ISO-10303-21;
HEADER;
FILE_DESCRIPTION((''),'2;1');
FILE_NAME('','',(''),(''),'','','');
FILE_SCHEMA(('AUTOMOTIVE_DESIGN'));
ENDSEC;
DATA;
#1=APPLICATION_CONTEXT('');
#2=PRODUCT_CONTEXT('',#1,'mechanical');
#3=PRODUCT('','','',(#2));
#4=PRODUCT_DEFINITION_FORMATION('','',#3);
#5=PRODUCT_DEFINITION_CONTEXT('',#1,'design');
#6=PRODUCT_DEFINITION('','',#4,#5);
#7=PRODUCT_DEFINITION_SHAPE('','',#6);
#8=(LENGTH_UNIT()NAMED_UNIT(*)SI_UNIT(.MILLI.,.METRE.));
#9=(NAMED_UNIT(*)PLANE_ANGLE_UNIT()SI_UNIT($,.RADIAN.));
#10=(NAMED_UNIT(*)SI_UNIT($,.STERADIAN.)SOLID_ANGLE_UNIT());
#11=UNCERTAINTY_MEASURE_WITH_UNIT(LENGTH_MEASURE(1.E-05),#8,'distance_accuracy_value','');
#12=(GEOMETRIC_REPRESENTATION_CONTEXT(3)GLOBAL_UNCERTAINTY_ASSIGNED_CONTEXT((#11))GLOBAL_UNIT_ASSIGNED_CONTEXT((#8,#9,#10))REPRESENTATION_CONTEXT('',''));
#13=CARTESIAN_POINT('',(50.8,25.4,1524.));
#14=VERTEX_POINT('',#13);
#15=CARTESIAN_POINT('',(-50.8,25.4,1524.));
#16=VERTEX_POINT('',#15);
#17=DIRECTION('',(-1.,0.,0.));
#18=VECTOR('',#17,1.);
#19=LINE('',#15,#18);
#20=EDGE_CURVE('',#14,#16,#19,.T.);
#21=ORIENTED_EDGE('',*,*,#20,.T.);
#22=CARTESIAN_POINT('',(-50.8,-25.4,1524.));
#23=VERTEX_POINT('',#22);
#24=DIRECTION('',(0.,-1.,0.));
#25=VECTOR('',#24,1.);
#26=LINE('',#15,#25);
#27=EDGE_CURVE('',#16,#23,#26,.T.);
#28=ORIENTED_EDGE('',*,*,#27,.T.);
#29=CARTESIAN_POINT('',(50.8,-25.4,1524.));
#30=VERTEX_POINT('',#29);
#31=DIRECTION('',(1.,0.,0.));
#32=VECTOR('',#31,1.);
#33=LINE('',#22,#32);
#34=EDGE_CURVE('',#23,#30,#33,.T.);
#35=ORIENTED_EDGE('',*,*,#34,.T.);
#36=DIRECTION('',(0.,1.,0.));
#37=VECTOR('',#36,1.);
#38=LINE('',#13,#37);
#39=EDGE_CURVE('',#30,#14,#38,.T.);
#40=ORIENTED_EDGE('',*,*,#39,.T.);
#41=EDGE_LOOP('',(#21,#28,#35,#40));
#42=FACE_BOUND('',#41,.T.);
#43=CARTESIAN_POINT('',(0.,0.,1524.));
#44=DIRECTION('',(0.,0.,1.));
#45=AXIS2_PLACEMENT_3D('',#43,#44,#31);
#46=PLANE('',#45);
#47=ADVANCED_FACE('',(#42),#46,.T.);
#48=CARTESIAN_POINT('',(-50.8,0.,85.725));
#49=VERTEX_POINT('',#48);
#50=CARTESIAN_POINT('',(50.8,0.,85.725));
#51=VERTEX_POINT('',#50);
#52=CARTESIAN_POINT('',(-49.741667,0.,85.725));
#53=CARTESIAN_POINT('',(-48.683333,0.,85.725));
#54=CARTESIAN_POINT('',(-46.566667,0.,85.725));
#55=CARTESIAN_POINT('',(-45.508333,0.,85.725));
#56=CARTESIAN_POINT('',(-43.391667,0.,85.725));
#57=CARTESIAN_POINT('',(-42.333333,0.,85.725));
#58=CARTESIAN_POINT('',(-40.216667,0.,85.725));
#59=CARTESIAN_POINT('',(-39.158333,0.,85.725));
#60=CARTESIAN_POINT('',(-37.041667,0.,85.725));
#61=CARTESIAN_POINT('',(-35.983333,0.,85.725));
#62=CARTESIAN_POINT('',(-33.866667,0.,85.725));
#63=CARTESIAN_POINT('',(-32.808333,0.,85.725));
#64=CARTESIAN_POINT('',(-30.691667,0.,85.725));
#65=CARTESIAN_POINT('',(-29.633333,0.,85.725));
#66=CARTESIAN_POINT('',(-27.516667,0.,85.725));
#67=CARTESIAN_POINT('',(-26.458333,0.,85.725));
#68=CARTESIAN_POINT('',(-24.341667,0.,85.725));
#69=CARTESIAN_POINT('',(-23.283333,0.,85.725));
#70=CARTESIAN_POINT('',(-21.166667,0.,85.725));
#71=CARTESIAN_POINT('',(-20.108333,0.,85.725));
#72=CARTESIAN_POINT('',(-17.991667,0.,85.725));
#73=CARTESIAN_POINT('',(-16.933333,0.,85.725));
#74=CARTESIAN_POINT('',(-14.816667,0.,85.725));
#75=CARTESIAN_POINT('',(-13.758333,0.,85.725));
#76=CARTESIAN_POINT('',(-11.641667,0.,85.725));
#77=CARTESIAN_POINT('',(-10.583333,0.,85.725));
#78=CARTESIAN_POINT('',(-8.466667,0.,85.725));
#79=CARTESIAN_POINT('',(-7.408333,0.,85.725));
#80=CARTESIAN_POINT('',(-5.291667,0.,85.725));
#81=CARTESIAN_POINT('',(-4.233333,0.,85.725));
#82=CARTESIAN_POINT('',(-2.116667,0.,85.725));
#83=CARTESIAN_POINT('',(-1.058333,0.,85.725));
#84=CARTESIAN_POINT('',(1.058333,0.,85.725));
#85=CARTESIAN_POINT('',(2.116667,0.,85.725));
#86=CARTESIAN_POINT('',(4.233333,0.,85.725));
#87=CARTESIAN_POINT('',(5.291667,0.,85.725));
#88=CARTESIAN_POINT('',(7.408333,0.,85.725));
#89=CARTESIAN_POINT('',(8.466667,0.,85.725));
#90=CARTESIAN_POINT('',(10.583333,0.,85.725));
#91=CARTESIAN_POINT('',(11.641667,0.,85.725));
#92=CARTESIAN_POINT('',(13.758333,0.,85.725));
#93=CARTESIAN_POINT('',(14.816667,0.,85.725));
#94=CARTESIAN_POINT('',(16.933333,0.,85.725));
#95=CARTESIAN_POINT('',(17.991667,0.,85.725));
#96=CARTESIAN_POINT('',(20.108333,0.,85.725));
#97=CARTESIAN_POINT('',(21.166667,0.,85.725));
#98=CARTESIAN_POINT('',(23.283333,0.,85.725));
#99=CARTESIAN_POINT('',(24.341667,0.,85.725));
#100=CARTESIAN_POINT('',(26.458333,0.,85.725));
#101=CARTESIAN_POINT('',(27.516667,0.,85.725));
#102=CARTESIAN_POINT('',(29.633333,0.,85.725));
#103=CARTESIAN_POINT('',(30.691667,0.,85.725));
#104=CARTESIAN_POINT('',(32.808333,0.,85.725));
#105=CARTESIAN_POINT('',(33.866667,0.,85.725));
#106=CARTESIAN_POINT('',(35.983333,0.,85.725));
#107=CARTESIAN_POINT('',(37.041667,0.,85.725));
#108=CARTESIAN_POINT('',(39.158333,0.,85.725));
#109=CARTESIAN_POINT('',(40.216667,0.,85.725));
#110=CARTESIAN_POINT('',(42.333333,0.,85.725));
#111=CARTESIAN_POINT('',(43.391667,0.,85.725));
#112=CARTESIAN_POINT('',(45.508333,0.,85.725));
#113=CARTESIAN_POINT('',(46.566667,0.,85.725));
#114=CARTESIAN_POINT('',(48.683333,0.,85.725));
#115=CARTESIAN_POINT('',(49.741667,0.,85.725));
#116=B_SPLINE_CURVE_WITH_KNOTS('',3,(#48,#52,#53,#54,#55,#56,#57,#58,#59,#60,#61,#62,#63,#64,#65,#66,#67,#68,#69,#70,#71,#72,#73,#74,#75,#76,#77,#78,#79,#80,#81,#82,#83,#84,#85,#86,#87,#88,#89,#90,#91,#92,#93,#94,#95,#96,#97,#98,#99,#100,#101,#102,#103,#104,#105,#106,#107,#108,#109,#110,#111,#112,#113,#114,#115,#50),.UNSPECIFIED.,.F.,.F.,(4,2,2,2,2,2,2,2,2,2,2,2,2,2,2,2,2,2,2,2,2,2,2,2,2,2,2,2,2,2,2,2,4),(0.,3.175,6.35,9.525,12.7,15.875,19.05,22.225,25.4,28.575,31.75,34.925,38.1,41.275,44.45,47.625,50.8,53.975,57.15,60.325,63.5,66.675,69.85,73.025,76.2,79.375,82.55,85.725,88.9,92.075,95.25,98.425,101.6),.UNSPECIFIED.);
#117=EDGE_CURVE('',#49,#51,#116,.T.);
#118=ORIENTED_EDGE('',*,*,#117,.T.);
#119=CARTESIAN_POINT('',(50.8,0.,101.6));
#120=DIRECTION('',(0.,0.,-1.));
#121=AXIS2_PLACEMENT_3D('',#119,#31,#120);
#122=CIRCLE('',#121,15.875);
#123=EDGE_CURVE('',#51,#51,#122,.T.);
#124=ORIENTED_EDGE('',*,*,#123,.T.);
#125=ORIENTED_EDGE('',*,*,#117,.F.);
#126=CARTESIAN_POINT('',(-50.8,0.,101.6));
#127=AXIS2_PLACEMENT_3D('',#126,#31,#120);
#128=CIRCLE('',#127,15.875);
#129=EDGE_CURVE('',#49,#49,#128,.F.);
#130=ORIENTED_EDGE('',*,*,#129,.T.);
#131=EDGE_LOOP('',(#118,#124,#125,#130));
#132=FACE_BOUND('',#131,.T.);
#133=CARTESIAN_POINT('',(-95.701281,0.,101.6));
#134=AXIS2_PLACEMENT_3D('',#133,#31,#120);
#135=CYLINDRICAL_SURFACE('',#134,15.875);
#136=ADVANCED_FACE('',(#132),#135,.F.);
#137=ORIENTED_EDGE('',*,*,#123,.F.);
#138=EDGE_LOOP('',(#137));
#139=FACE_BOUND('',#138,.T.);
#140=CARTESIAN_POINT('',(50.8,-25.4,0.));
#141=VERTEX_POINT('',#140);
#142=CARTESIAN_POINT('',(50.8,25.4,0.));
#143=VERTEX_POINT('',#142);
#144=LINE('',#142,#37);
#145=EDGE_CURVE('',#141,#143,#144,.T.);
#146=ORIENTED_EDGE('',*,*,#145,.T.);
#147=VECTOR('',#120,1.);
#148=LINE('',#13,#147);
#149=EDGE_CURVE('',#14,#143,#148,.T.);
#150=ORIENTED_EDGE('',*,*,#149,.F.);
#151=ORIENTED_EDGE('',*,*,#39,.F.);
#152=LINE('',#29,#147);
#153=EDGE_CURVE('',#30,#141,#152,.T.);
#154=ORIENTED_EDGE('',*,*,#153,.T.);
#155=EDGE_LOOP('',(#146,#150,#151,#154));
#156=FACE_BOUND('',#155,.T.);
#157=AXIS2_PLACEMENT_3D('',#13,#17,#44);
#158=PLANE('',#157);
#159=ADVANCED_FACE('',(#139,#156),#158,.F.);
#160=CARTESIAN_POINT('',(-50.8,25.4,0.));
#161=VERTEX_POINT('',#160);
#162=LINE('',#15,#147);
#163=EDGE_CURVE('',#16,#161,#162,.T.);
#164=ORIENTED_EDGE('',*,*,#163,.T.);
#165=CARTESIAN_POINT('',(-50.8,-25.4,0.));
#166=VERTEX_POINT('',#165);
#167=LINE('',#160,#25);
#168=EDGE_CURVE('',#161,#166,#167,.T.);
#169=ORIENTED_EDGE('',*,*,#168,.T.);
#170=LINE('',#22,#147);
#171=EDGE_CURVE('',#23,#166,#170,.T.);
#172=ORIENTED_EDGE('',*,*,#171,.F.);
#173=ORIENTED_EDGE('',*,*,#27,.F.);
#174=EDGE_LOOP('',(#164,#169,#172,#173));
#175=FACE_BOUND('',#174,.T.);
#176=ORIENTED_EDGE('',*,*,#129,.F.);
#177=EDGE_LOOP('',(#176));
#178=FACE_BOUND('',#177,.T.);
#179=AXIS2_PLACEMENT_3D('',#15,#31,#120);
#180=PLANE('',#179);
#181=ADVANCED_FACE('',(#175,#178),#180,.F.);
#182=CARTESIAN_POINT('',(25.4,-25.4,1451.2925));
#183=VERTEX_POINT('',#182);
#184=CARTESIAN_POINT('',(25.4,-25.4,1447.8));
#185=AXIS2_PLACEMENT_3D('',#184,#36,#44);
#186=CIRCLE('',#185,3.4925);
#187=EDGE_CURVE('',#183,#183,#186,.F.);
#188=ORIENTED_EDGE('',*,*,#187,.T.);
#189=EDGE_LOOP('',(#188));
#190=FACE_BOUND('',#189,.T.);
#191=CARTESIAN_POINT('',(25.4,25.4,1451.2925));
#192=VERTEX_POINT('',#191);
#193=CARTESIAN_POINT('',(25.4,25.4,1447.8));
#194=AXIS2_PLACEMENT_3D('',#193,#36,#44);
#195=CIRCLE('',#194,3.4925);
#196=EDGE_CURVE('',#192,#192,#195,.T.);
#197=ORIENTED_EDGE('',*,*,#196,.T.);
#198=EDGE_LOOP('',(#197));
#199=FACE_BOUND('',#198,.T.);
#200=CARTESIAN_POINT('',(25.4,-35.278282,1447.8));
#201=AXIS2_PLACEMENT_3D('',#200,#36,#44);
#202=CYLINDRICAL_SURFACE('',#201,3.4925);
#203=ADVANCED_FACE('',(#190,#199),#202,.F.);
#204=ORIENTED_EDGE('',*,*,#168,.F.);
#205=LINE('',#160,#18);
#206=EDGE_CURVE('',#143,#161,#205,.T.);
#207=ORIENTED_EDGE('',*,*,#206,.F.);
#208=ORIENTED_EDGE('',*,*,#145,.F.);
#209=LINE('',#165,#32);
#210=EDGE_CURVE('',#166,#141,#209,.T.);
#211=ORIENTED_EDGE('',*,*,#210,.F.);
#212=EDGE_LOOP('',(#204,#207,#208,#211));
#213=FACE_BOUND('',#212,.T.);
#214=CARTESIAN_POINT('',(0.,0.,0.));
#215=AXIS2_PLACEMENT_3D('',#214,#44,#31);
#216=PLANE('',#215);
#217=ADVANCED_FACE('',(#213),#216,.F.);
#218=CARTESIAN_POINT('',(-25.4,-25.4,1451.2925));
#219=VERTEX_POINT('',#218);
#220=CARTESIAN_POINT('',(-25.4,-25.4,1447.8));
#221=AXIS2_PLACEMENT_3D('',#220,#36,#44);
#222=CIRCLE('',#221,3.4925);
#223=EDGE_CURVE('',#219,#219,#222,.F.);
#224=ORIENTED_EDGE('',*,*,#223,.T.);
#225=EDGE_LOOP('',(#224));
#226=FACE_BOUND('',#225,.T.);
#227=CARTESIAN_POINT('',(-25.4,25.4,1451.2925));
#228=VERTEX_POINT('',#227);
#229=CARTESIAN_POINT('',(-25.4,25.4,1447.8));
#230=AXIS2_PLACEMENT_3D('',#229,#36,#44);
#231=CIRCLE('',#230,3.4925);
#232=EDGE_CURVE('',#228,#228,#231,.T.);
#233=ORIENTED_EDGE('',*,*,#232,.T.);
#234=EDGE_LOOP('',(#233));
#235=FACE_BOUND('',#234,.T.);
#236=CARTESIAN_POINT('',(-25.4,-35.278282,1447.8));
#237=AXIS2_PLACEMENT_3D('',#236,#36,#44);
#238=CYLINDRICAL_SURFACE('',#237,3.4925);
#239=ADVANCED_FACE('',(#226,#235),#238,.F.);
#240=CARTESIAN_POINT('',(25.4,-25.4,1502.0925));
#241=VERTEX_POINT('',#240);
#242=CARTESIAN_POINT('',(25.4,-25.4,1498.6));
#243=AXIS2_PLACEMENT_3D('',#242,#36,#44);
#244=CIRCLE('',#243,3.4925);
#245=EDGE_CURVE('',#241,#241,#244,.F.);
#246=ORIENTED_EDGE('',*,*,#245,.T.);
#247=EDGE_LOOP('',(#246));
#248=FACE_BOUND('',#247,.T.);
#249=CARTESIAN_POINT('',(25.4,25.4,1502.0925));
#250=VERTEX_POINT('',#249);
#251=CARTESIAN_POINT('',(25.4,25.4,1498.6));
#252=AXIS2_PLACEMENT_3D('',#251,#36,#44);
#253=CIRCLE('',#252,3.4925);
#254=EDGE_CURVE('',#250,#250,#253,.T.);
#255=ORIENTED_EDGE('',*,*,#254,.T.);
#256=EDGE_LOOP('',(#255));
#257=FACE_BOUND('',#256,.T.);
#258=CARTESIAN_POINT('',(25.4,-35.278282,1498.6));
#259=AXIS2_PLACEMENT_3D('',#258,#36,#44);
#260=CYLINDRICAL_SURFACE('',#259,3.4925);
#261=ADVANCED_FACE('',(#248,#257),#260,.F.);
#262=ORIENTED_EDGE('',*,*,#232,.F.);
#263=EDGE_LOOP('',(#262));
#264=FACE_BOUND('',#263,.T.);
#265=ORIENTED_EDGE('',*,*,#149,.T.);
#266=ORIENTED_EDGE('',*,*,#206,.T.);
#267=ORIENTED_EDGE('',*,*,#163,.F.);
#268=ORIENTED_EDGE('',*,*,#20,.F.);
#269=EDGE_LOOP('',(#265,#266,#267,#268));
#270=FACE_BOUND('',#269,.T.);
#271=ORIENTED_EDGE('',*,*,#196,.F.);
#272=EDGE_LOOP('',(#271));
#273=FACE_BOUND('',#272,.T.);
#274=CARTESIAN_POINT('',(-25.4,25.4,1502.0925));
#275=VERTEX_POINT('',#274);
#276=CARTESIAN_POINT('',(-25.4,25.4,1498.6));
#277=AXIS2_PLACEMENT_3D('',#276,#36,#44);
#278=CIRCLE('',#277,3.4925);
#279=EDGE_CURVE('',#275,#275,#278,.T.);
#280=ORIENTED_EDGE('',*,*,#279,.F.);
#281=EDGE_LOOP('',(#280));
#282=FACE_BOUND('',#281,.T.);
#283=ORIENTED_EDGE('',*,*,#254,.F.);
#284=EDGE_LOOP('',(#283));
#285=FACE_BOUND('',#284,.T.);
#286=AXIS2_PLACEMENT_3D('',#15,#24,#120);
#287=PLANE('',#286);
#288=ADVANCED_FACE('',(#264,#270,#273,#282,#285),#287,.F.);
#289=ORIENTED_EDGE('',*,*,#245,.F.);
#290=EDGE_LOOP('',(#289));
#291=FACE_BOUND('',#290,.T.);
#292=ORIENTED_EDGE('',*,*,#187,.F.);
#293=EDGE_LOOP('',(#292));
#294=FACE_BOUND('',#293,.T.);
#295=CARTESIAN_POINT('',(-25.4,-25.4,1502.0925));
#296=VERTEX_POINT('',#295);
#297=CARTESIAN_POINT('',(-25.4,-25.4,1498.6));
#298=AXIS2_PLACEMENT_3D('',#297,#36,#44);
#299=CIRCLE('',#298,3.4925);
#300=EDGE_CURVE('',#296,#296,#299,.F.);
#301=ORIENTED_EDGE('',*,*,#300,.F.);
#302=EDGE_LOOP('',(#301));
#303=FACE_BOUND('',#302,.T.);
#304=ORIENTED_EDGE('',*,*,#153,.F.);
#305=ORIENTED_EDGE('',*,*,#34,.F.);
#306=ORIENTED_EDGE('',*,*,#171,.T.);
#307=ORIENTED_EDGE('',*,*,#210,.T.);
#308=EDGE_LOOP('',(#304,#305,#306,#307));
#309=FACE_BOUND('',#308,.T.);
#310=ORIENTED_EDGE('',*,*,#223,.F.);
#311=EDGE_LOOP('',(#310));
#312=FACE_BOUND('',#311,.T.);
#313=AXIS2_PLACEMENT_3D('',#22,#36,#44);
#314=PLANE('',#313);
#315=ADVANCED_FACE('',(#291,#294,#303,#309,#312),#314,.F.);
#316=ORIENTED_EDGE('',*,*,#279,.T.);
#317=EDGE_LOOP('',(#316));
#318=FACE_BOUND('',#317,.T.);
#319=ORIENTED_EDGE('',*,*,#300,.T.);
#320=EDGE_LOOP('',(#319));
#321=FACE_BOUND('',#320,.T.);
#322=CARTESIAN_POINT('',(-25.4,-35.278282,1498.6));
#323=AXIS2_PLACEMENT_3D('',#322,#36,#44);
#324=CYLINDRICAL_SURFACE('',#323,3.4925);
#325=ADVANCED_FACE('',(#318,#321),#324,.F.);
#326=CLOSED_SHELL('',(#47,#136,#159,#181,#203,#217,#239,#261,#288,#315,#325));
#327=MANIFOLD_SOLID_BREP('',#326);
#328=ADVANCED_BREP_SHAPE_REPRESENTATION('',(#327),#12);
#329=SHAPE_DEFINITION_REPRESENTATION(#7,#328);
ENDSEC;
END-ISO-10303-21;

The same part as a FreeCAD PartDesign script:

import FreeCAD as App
import Part
import Sketcher
Q = App.Units.Quantity


def add_polygon(sketch, points):
    """Adds a closed chain of lines whose ends are joined by coincident constraints."""
    first, n = sketch.GeometryCount, len(points)
    for a, b in zip(points, points[1:] + points[:1]):
        sketch.addGeometry(Part.LineSegment(App.Vector(*a, 0), App.Vector(*b, 0)), False)
    for i in range(n):
        sketch.addConstraint(Sketcher.Constraint("Coincident", first + i, 2, first + (i + 1) % n, 1))

doc = App.newDocument("Part")
body = doc.addObject("PartDesign::Body", "Body")

# Sketch on XY plane
sketch1 = body.newObject("Sketcher::SketchObject", "Sketch")
sketch1.AttachmentSupport = (doc.getObject("XY_Plane"), [""])
sketch1.MapMode = "FlatFace"
add_polygon(sketch1, [(-50.8, 25.4), (-50.8, -25.4), (50.8, -25.4), (50.8, 25.4)])  # lines 0-3
sketch1.addConstraint(Sketcher.Constraint("Vertical", 0))
sketch1.addConstraint(Sketcher.Constraint("Horizontal", 1))
sketch1.addConstraint(Sketcher.Constraint("Vertical", 2))
sketch1.addConstraint(Sketcher.Constraint("Horizontal", 3))
sketch1.addConstraint(Sketcher.Constraint("Symmetric", 0, 2, 2, 2, -1, 1))
sketch1.addConstraint(Sketcher.Constraint("DistanceX", 1, 1, 1, 2, Q("4 in")))
sketch1.addConstraint(Sketcher.Constraint("DistanceY", 0, 2, 0, 1, Q("2 in")))
pad1 = body.newObject("PartDesign::Pad", "Pad")
pad1.Profile = sketch1
pad1.Length = Q("60 in")

# Sketch on XZ plane
sketch2 = body.newObject("Sketcher::SketchObject", "Sketch001")
sketch2.AttachmentSupport = (doc.getObject("XZ_Plane"), [""])
sketch2.MapMode = "FlatFace"
sketch2.AttachmentOffset = App.Placement(App.Vector(0, 0, -1 * 25.4), App.Rotation())
sketch2.addGeometry(Part.Circle(App.Vector(-25.4, 1447.8, 0), App.Vector(0, 0, 1), 3.4925), False)
sketch2.addGeometry(Part.Circle(App.Vector(25.4, 1447.8, 0), App.Vector(0, 0, 1), 3.4925), False)
sketch2.addGeometry(Part.Circle(App.Vector(25.4, 1498.6, 0), App.Vector(0, 0, 1), 3.4925), False)
sketch2.addGeometry(Part.Circle(App.Vector(-25.4, 1498.6, 0), App.Vector(0, 0, 1), 3.4925), False)
sketch2.addConstraint(Sketcher.Constraint("Equal", 0, 1))
sketch2.addConstraint(Sketcher.Constraint("Equal", 1, 2))
sketch2.addConstraint(Sketcher.Constraint("Equal", 2, 3))
sketch2.addConstraint(Sketcher.Constraint("Symmetric", 0, 3, 1, 3, -2))
sketch2.addConstraint(Sketcher.Constraint("Symmetric", 2, 3, 3, 3, -2))
sketch2.addConstraint(Sketcher.Constraint("Vertical", 1, 3, 2, 3))
sketch2.addConstraint(Sketcher.Constraint("Diameter", 0, Q("0.275 in")))
sketch2.addConstraint(Sketcher.Constraint("DistanceX", 0, 3, -1, 1, Q("1 in")))
sketch2.addConstraint(Sketcher.Constraint("DistanceY", -1, 1, 0, 3, Q("57 in")))
sketch2.addConstraint(Sketcher.Constraint("DistanceY", -1, 1, 2, 3, Q("59 in")))
pocket1 = body.newObject("PartDesign::Pocket", "Pocket")
pocket1.Profile = sketch2
pocket1.Length = Q("2 in")
pocket1.Reversed = True

# Sketch on YZ plane
sketch3 = body.newObject("Sketcher::SketchObject", "Sketch002")
sketch3.AttachmentSupport = (doc.getObject("YZ_Plane"), [""])
sketch3.MapMode = "FlatFace"
sketch3.AttachmentOffset = App.Placement(App.Vector(0, 0, 2 * 25.4), App.Rotation())
sketch3.addGeometry(Part.Circle(App.Vector(0, 101.6, 0), App.Vector(0, 0, 1), 15.875), False)
sketch3.addConstraint(Sketcher.Constraint("PointOnObject", 0, 3, -2))
sketch3.addConstraint(Sketcher.Constraint("Diameter", 0, Q("1.25 in")))
sketch3.addConstraint(Sketcher.Constraint("DistanceY", -1, 1, 0, 3, Q("4 in")))
pocket2 = body.newObject("PartDesign::Pocket", "Pocket001")
pocket2.Profile = sketch3
pocket2.Length = Q("4 in")

doc.recompute()
